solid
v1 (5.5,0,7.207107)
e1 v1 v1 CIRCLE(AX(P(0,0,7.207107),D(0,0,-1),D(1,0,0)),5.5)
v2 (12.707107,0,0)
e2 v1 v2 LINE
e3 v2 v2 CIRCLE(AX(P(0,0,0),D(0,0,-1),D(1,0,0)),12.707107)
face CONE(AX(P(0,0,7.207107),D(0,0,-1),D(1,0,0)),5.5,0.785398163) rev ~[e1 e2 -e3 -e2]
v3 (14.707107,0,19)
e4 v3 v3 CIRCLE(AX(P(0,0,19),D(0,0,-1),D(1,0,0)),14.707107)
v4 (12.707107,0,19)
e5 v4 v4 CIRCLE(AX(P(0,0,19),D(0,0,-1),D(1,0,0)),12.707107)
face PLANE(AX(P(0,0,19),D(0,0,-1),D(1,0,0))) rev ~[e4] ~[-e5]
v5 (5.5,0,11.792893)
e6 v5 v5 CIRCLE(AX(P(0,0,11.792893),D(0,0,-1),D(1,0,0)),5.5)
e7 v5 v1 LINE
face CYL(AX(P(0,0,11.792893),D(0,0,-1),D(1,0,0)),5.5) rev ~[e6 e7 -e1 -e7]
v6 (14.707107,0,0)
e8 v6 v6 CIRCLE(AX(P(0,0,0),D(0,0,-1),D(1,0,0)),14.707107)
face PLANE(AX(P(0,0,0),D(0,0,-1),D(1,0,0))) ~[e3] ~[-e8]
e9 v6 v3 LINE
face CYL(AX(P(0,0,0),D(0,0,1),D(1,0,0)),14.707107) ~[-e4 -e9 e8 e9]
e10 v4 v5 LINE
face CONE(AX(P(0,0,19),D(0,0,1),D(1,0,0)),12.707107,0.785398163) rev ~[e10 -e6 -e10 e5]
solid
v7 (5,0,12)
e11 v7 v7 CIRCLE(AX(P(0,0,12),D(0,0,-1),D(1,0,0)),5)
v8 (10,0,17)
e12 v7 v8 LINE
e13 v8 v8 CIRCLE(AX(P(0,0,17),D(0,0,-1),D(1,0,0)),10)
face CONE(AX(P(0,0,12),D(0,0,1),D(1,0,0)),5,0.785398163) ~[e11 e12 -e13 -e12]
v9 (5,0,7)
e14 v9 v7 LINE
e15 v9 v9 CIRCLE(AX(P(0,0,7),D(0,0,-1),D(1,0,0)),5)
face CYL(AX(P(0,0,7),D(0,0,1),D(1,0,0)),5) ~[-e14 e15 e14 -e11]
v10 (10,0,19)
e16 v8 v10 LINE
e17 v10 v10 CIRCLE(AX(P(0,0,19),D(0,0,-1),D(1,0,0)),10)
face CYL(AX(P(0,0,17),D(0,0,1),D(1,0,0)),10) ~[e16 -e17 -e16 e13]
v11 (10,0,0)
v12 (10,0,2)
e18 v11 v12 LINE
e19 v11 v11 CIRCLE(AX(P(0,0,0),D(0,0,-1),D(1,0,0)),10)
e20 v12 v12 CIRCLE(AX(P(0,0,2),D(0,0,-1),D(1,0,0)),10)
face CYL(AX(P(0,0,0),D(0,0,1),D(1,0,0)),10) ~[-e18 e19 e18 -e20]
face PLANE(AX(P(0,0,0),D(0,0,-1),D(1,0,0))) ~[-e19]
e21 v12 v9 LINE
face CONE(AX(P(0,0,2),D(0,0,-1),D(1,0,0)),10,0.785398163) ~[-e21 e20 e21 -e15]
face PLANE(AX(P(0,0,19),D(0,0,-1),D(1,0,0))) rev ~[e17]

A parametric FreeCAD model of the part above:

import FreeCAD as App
import Part
import Sketcher

V = App.Vector


def add_polygon(sketch, points):
    """Adds a closed chain of lines whose ends are joined by coincident constraints."""
    first, n = sketch.GeometryCount, len(points)
    for a, b in zip(points, points[1:] + points[:1]):
        sketch.addGeometry(Part.LineSegment(App.Vector(*a, 0), App.Vector(*b, 0)), False)
    for i in range(n):
        sketch.addConstraint(Sketcher.Constraint("Coincident", first + i, 2, first + (i + 1) % n, 1))

doc = App.newDocument("Part")
params = doc.addObject("Spreadsheet::Sheet", "Params")
for row, (alias, value) in enumerate([
    ("sketch1_width", "10 mm"),
    ("sketch1_width2", "2 mm"),
    ("sketch1_height", "19 mm"),
    ("sketch1_height2", "5 mm"),
    ("revolution_angle", "360 deg"),
], start=1):
    params.set(f"A{row}", alias)
    params.set(f"B{row}", "=" + value)
    params.setAlias(f"B{row}", alias)

body = doc.addObject("PartDesign::Body", "Body")
body.AllowCompound = True

sketch1 = body.newObject("Sketcher::SketchObject", "Sketch")
sketch1.AttachmentSupport = (doc.getObject("XZ_Plane"), [""])
sketch1.MapMode = "FlatFace"
add_polygon(sketch1, [(0, 19), (0, 0), (10, 0), (10, 2), (5, 7), (5, 12), (10, 17), (10, 19)])
add_polygon(sketch1, [(5.5, 7.2), (12.7, 0), (14.7, 0), (14.7, 19), (12.7, 19), (5.5, 11.8)])
sketch1.addConstraint([
    Sketcher.Constraint("Vertical", 0),
    Sketcher.Constraint("Horizontal", 1),
    Sketcher.Constraint("Vertical", 2),
    Sketcher.Constraint("Vertical", 4),
    Sketcher.Constraint("Vertical", 6),
    Sketcher.Constraint("Horizontal", 7),
    Sketcher.Constraint("Horizontal", 9),
    Sketcher.Constraint("Vertical", 10),
    Sketcher.Constraint("Horizontal", 11),
    Sketcher.Constraint("Vertical", 13),
    Sketcher.Constraint("Coincident", 0, 2, -1, 1),
    Sketcher.Constraint("PointOnObject", 8, 2, -1),
    Sketcher.Constraint("Perpendicular", 3, 5),
    Sketcher.Constraint("Perpendicular", 5, 8),
    Sketcher.Constraint("Perpendicular", 8, 12),
    Sketcher.Constraint("Horizontal", 7, 2, 10, 2),
    Sketcher.Constraint("Vertical", 2, 2, 5, 2),
    Sketcher.Constraint("Vertical", 8, 2, 11, 2),
    Sketcher.Constraint("Equal", 11, 2),
    Sketcher.Constraint("Equal", 2, 6),
    Sketcher.Constraint("Equal", 3, 5),
    Sketcher.Constraint("DistanceX", 1, 1, 1, 2, 10.0),
    Sketcher.Constraint("DistanceX", 9, 1, 9, 2, 2.0),
    Sketcher.Constraint("DistanceY", 0, 2, 0, 1, 19.0),
    Sketcher.Constraint("DistanceY", 4, 1, 4, 2, 5.0),
    Sketcher.Constraint("DistanceX", -1, 1, 12, 2, 5.5),
    Sketcher.Constraint("Distance", 8, 10.192388),
])
sketch1.setExpression("Constraints[35]", "Params.sketch1_width")
sketch1.setExpression("Constraints[36]", "Params.sketch1_width2")
sketch1.setExpression("Constraints[37]", "Params.sketch1_height")
sketch1.setExpression("Constraints[38]", "Params.sketch1_height2")
revolution = body.newObject("PartDesign::Revolution", "Revolution")
revolution.Profile = sketch1
revolution.ReferenceAxis = (sketch1, ["V_Axis"])
revolution.setExpression("Angle", "Params.revolution_angle")

doc.recompute()
